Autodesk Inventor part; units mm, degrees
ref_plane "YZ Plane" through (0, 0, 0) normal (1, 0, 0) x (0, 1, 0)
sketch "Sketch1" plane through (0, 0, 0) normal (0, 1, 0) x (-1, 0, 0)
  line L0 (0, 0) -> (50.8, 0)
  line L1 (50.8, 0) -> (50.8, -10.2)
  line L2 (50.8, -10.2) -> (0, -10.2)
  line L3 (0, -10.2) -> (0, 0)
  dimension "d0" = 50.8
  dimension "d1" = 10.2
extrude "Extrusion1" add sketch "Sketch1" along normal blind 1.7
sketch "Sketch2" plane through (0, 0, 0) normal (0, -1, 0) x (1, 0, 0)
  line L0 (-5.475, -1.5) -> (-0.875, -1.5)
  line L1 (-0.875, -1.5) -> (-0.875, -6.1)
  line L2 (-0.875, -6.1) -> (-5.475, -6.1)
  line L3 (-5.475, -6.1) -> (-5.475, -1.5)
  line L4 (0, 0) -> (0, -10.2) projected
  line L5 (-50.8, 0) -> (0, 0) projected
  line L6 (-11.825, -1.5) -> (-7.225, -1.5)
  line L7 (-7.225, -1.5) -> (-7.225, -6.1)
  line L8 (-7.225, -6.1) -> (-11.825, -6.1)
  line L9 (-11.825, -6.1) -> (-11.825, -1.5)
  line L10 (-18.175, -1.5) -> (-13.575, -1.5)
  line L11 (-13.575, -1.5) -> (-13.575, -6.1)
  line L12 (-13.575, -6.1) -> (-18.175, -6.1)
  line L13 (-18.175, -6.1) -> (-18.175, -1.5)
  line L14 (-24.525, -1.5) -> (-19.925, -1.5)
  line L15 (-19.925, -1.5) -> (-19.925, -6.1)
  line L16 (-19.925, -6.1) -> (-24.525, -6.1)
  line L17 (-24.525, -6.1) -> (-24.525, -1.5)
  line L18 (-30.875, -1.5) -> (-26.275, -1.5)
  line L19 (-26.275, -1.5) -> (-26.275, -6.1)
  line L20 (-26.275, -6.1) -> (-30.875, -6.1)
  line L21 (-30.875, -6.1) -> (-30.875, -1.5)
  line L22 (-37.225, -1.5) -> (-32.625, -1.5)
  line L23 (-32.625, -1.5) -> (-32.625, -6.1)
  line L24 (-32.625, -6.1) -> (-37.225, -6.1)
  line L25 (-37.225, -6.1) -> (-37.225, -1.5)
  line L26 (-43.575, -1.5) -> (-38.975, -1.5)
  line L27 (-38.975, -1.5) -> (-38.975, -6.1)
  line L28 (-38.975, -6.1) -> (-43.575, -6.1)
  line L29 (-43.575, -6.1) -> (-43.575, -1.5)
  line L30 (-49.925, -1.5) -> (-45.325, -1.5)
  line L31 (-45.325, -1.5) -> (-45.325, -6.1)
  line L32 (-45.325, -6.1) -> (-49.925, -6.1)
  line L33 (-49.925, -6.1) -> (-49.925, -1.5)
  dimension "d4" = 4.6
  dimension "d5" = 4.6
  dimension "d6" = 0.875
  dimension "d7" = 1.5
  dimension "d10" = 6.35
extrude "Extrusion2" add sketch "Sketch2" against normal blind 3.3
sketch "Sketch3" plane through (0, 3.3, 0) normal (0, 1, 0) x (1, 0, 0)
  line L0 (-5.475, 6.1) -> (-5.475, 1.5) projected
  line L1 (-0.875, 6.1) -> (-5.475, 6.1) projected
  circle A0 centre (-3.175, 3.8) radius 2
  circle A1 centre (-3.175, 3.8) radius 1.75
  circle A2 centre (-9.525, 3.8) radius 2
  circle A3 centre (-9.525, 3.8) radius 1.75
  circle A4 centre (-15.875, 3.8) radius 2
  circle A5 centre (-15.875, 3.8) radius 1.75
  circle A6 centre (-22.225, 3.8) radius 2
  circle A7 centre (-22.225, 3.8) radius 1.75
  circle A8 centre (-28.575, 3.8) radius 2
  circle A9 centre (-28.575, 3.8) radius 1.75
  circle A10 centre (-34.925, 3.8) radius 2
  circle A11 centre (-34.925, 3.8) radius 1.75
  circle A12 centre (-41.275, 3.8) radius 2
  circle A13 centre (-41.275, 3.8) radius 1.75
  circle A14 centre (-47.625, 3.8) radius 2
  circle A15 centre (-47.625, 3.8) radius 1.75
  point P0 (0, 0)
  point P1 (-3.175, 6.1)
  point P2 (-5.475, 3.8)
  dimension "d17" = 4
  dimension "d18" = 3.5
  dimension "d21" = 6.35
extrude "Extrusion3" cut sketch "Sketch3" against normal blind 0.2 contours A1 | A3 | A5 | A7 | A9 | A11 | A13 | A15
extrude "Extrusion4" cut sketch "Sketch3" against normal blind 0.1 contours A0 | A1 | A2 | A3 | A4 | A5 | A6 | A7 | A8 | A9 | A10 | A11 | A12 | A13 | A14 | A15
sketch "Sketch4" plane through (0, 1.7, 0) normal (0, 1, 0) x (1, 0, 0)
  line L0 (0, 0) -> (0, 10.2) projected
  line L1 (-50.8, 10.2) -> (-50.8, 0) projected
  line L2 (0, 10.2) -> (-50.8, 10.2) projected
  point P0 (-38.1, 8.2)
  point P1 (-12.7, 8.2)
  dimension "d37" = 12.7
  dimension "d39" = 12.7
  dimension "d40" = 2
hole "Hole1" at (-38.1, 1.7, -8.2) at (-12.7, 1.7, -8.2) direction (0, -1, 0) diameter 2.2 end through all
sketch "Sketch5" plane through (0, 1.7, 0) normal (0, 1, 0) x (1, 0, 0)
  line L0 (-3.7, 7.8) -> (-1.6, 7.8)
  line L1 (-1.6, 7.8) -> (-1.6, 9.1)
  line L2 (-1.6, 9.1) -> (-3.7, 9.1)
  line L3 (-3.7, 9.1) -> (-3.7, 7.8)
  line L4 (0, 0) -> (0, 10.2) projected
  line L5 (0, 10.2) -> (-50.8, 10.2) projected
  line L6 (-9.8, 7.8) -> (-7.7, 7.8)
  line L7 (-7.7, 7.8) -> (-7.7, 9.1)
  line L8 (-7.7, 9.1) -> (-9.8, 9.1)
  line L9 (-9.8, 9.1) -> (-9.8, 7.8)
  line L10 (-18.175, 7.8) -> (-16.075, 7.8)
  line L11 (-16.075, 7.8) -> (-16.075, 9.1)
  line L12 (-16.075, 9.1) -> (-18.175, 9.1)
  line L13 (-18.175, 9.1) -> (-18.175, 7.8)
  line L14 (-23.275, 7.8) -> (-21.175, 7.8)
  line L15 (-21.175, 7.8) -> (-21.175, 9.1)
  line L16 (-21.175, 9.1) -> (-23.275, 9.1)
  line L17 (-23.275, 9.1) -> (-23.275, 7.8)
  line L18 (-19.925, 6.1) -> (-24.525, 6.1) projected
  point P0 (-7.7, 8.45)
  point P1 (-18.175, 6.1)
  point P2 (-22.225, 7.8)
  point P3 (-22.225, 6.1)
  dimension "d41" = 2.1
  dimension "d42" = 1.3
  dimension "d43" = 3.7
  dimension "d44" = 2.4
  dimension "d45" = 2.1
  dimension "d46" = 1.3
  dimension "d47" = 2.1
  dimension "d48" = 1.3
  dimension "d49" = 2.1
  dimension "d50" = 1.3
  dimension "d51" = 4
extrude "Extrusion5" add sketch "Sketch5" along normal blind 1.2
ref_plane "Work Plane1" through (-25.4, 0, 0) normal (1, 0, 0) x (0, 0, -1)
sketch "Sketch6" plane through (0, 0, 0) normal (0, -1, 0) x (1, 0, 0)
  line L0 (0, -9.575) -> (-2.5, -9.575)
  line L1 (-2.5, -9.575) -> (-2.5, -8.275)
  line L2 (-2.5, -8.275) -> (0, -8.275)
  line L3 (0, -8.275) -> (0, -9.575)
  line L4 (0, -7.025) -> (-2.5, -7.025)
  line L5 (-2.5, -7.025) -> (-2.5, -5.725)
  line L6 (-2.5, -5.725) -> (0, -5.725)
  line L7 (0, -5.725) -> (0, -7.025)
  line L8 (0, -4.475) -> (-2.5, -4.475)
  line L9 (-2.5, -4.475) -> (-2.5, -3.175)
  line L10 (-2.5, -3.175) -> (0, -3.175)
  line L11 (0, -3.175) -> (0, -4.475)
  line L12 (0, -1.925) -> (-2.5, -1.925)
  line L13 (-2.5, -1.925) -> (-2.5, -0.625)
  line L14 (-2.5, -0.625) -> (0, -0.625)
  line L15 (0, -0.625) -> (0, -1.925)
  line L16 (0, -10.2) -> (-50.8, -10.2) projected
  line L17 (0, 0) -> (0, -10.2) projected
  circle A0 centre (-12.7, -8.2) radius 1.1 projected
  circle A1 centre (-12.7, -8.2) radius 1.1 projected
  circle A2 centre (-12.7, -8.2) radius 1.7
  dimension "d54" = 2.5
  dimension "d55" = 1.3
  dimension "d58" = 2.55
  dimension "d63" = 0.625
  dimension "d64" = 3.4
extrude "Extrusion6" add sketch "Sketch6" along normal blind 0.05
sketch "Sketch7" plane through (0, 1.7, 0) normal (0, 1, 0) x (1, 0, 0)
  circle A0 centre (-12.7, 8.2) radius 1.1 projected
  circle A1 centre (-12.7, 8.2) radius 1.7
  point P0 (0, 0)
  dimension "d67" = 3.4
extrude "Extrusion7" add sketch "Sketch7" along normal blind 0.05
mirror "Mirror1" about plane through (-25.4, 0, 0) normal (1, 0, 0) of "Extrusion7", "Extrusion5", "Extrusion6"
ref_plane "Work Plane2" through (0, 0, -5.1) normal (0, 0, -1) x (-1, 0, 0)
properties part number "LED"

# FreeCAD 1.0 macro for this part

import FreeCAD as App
import Part
import Sketcher
from FreeCAD import Vector
Q = App.Units.Quantity


def add_polygon(sketch, points):
    """Adds a closed chain of lines whose ends are joined by coincident constraints."""
    first, n = sketch.GeometryCount, len(points)
    for a, b in zip(points, points[1:] + points[:1]):
        sketch.addGeometry(Part.LineSegment(App.Vector(*a, 0), App.Vector(*b, 0)), False)
    for i in range(n):
        sketch.addConstraint(Sketcher.Constraint("Coincident", first + i, 2, first + (i + 1) % n, 1))

doc = App.newDocument("Part")
body = doc.addObject("PartDesign::Body", "Body")

# Sketch on XZ plane
sketch1 = doc.addObject("Sketcher::SketchObject", "Sketch")
body.addObject(sketch1)
sketch1.AttachmentSupport = (doc.XZ_Plane, [""])
sketch1.MapMode = "FlatFace"
add_polygon(sketch1, [(-51, 0), (0, 0), (0, -10), (-51, -10)])  # lines 0-3
sketch1.addConstraint(Sketcher.Constraint("Horizontal", 0))
sketch1.addConstraint(Sketcher.Constraint("Vertical", 1))
sketch1.addConstraint(Sketcher.Constraint("Horizontal", 2))
sketch1.addConstraint(Sketcher.Constraint("Vertical", 3))
sketch1.addConstraint(Sketcher.Constraint("Coincident", 0, 2, -1, 1))
sketch1.addConstraint(Sketcher.Constraint("DistanceX", 0, 1, 0, 2, Q("50.8 mm")))
sketch1.addConstraint(Sketcher.Constraint("DistanceY", 1, 2, 1, 1, Q("10.2 mm")))
pad1 = doc.addObject("PartDesign::Pad", "Pad")
body.addObject(pad1)
pad1.Profile = sketch1
pad1.Length = 1.7
pad1.Reversed = True

# Sketch on XZ plane
sketch2 = doc.addObject("Sketcher::SketchObject", "Sketch001")
body.addObject(sketch2)
sketch2.AttachmentSupport = (doc.XZ_Plane, [""])
sketch2.MapMode = "FlatFace"
add_polygon(sketch2, [(-0.9, -1.5), (-5.5, -1.5), (-5.5, -6.1), (-0.9, -6.1)])  # lines 0-3
add_polygon(sketch2, [(-7.2, -1.5), (-11.8, -1.5), (-11.8, -6.1), (-7.2, -6.1)])  # lines 4-7
add_polygon(sketch2, [(-13.6, -1.5), (-18.2, -1.5), (-18.2, -6.1), (-13.6, -6.1)])  # lines 8-11
add_polygon(sketch2, [(-19.9, -1.5), (-24.5, -1.5), (-24.5, -6.1), (-19.9, -6.1)])  # lines 12-15
add_polygon(sketch2, [(-26.3, -1.5), (-30.9, -1.5), (-30.9, -6.1), (-26.3, -6.1)])  # lines 16-19
add_polygon(sketch2, [(-32.6, -1.5), (-37.2, -1.5), (-37.2, -6.1), (-32.6, -6.1)])  # lines 20-23
add_polygon(sketch2, [(-39, -1.5), (-43.6, -1.5), (-43.6, -6.1), (-39, -6.1)])  # lines 24-27
add_polygon(sketch2, [(-45.3, -1.5), (-49.9, -1.5), (-49.9, -6.1), (-45.3, -6.1)])  # lines 28-31
sketch2.addConstraint(Sketcher.Constraint("Horizontal", 0))
sketch2.addConstraint(Sketcher.Constraint("Vertical", 1))
sketch2.addConstraint(Sketcher.Constraint("Horizontal", 2))
sketch2.addConstraint(Sketcher.Constraint("Vertical", 3))
sketch2.addConstraint(Sketcher.Constraint("Horizontal", 4))
sketch2.addConstraint(Sketcher.Constraint("Vertical", 5))
sketch2.addConstraint(Sketcher.Constraint("Horizontal", 6))
sketch2.addConstraint(Sketcher.Constraint("Vertical", 7))
sketch2.addConstraint(Sketcher.Constraint("Horizontal", 8))
sketch2.addConstraint(Sketcher.Constraint("Vertical", 9))
sketch2.addConstraint(Sketcher.Constraint("Horizontal", 10))
sketch2.addConstraint(Sketcher.Constraint("Vertical", 11))
sketch2.addConstraint(Sketcher.Constraint("Horizontal", 12))
sketch2.addConstraint(Sketcher.Constraint("Vertical", 13))
sketch2.addConstraint(Sketcher.Constraint("Horizontal", 14))
sketch2.addConstraint(Sketcher.Constraint("Vertical", 15))
sketch2.addConstraint(Sketcher.Constraint("Horizontal", 16))
sketch2.addConstraint(Sketcher.Constraint("Vertical", 17))
sketch2.addConstraint(Sketcher.Constraint("Horizontal", 18))
sketch2.addConstraint(Sketcher.Constraint("Vertical", 19))
sketch2.addConstraint(Sketcher.Constraint("Horizontal", 20))
sketch2.addConstraint(Sketcher.Constraint("Vertical", 21))
sketch2.addConstraint(Sketcher.Constraint("Horizontal", 22))
sketch2.addConstraint(Sketcher.Constraint("Vertical", 23))
sketch2.addConstraint(Sketcher.Constraint("Horizontal", 24))
sketch2.addConstraint(Sketcher.Constraint("Vertical", 25))
sketch2.addConstraint(Sketcher.Constraint("Horizontal", 26))
sketch2.addConstraint(Sketcher.Constraint("Vertical", 27))
sketch2.addConstraint(Sketcher.Constraint("Horizontal", 28))
sketch2.addConstraint(Sketcher.Constraint("Vertical", 29))
sketch2.addConstraint(Sketcher.Constraint("Horizontal", 30))
sketch2.addConstraint(Sketcher.Constraint("Vertical", 31))
sketch2.addConstraint(Sketcher.Constraint("Horizontal", 3, 2, 4, 2))
sketch2.addConstraint(Sketcher.Constraint("Horizontal", 2, 2, 5, 2))
sketch2.addConstraint(Sketcher.Constraint("Horizontal", 7, 2, 8, 2))
sketch2.addConstraint(Sketcher.Constraint("Horizontal", 6, 2, 9, 2))
sketch2.addConstraint(Sketcher.Constraint("Horizontal", 11, 2, 12, 2))
sketch2.addConstraint(Sketcher.Constraint("Horizontal", 10, 2, 13, 2))
sketch2.addConstraint(Sketcher.Constraint("Horizontal", 15, 2, 16, 2))
sketch2.addConstraint(Sketcher.Constraint("Horizontal", 14, 2, 17, 2))
sketch2.addConstraint(Sketcher.Constraint("Horizontal", 19, 2, 20, 2))
sketch2.addConstraint(Sketcher.Constraint("Horizontal", 18, 2, 21, 2))
sketch2.addConstraint(Sketcher.Constraint("Horizontal", 23, 2, 24, 2))
sketch2.addConstraint(Sketcher.Constraint("Horizontal", 22, 2, 25, 2))
sketch2.addConstraint(Sketcher.Constraint("Horizontal", 27, 2, 28, 2))
sketch2.addConstraint(Sketcher.Constraint("Horizontal", 26, 2, 29, 2))
sketch2.addConstraint(Sketcher.Constraint("Equal", 2, 4))
sketch2.addConstraint(Sketcher.Constraint("Equal", 6, 8))
sketch2.addConstraint(Sketcher.Constraint("Equal", 10, 12))
sketch2.addConstraint(Sketcher.Constraint("Equal", 14, 16))
sketch2.addConstraint(Sketcher.Constraint("Equal", 18, 20))
sketch2.addConstraint(Sketcher.Constraint("Equal", 22, 24))
sketch2.addConstraint(Sketcher.Constraint("Equal", 26, 28))
sketch2.addConstraint(Sketcher.Constraint("Equal", 30, 1))
sketch2.addConstraint(Sketcher.Constraint("DistanceX", 0, 2, 0, 1, Q("4.6 mm")))
sketch2.addConstraint(Sketcher.Constraint("DistanceY", 0, 2, -1, 1, Q("1.5 mm")))
sketch2.addConstraint(Sketcher.Constraint("DistanceX", 4, 2, 0, 2, Q("6.35 mm")))
sketch2.addConstraint(Sketcher.Constraint("DistanceX", 8, 2, 4, 2, Q("6.35 mm")))
sketch2.addConstraint(Sketcher.Constraint("DistanceX", 12, 2, 8, 2, Q("6.35 mm")))
sketch2.addConstraint(Sketcher.Constraint("DistanceX", 16, 2, 12, 2, Q("6.35 mm")))
sketch2.addConstraint(Sketcher.Constraint("DistanceX", 20, 2, 16, 2, Q("6.35 mm")))
sketch2.addConstraint(Sketcher.Constraint("DistanceX", 24, 2, 20, 2, Q("6.35 mm")))
sketch2.addConstraint(Sketcher.Constraint("DistanceX", 28, 2, 24, 2, Q("6.35 mm")))
sketch2.addConstraint(Sketcher.Constraint("DistanceX", 2, 2, -1, 1, Q("0.875 mm")))
pad2 = doc.addObject("PartDesign::Pad", "Pad001")
body.addObject(pad2)
pad2.Profile = sketch2
pad2.Length = 3.3
pad2.Reversed = True

# Sketch on XZ plane
sketch3 = doc.addObject("Sketcher::SketchObject", "Sketch002")
body.addObject(sketch3)
sketch3.AttachmentSupport = (doc.XZ_Plane, [""])
sketch3.MapMode = "FlatFace"
sketch3.AttachmentOffset = App.Placement(Vector(0, 0, -3.3), App.Rotation())
sketch3.addGeometry(Part.Circle(Vector(-3.2, -3.8, 0), Vector(0, 0, 1), 1.8), False)
sketch3.addGeometry(Part.Circle(Vector(-9.5, -3.8, 0), Vector(0, 0, 1), 1.8), False)
sketch3.addGeometry(Part.Circle(Vector(-15.9, -3.8, 0), Vector(0, 0, 1), 1.8), False)
sketch3.addGeometry(Part.Circle(Vector(-22.2, -3.8, 0), Vector(0, 0, 1), 1.8), False)
sketch3.addGeometry(Part.Circle(Vector(-28.6, -3.8, 0), Vector(0, 0, 1), 1.8), False)
sketch3.addGeometry(Part.Circle(Vector(-34.9, -3.8, 0), Vector(0, 0, 1), 1.8), False)
sketch3.addGeometry(Part.Circle(Vector(-41.3, -3.8, 0), Vector(0, 0, 1), 1.8), False)
sketch3.addGeometry(Part.Circle(Vector(-47.6, -3.8, 0), Vector(0, 0, 1), 1.8), False)
sketch3.addConstraint(Sketcher.Constraint("Equal", 0, 1))
sketch3.addConstraint(Sketcher.Constraint("Equal", 1, 2))
sketch3.addConstraint(Sketcher.Constraint("Equal", 2, 3))
sketch3.addConstraint(Sketcher.Constraint("Equal", 3, 4))
sketch3.addConstraint(Sketcher.Constraint("Equal", 4, 5))
sketch3.addConstraint(Sketcher.Constraint("Equal", 5, 6))
sketch3.addConstraint(Sketcher.Constraint("Equal", 6, 7))
sketch3.addConstraint(Sketcher.Constraint("Horizontal", 0, 3, 1, 3))
sketch3.addConstraint(Sketcher.Constraint("Horizontal", 1, 3, 2, 3))
sketch3.addConstraint(Sketcher.Constraint("Horizontal", 2, 3, 3, 3))
sketch3.addConstraint(Sketcher.Constraint("Horizontal", 3, 3, 4, 3))
sketch3.addConstraint(Sketcher.Constraint("Horizontal", 4, 3, 5, 3))
sketch3.addConstraint(Sketcher.Constraint("Horizontal", 5, 3, 6, 3))
sketch3.addConstraint(Sketcher.Constraint("Horizontal", 6, 3, 7, 3))
sketch3.addConstraint(Sketcher.Constraint("Diameter", 0, Q("3.5 mm")))
sketch3.addConstraint(Sketcher.Constraint("DistanceX", 1, 3, 0, 3, Q("6.35 mm")))
sketch3.addConstraint(Sketcher.Constraint("DistanceX", 2, 3, 1, 3, Q("6.35 mm")))
sketch3.addConstraint(Sketcher.Constraint("DistanceX", 3, 3, 2, 3, Q("6.35 mm")))
sketch3.addConstraint(Sketcher.Constraint("DistanceX", 4, 3, 3, 3, Q("6.35 mm")))
sketch3.addConstraint(Sketcher.Constraint("DistanceX", 5, 3, 4, 3, Q("6.35 mm")))
sketch3.addConstraint(Sketcher.Constraint("DistanceX", 6, 3, 5, 3, Q("6.35 mm")))
sketch3.addConstraint(Sketcher.Constraint("DistanceX", 7, 3, 6, 3, Q("6.35 mm")))
sketch3.addConstraint(Sketcher.Constraint("DistanceY", 0, 3, -1, 1, Q("3.8 mm")))
sketch3.addConstraint(Sketcher.Constraint("DistanceX", 0, 3, -1, 1, Q("3.175 mm")))
pocket1 = doc.addObject("PartDesign::Pocket", "Pocket")
body.addObject(pocket1)
pocket1.Profile = sketch3
pocket1.Length = 0.2
pocket1.Reversed = True

# Sketch on XZ plane
sketch4 = doc.addObject("Sketcher::SketchObject", "Sketch003")
body.addObject(sketch4)
sketch4.AttachmentSupport = (doc.XZ_Plane, [""])
sketch4.MapMode = "FlatFace"
sketch4.AttachmentOffset = App.Placement(Vector(0, 0, -3.3), App.Rotation())
sketch4.addGeometry(Part.Circle(Vector(-3.2, -3.8, 0), Vector(0, 0, 1), 2), False)
sketch4.addGeometry(Part.Circle(Vector(-9.5, -3.8, 0), Vector(0, 0, 1), 2), False)
sketch4.addGeometry(Part.Circle(Vector(-15.9, -3.8, 0), Vector(0, 0, 1), 2), False)
sketch4.addGeometry(Part.Circle(Vector(-22.2, -3.8, 0), Vector(0, 0, 1), 2), False)
sketch4.addGeometry(Part.Circle(Vector(-28.6, -3.8, 0), Vector(0, 0, 1), 2), False)
sketch4.addGeometry(Part.Circle(Vector(-34.9, -3.8, 0), Vector(0, 0, 1), 2), False)
sketch4.addGeometry(Part.Circle(Vector(-41.3, -3.8, 0), Vector(0, 0, 1), 2), False)
sketch4.addGeometry(Part.Circle(Vector(-47.6, -3.8, 0), Vector(0, 0, 1), 2), False)
sketch4.addConstraint(Sketcher.Constraint("Equal", 0, 1))
sketch4.addConstraint(Sketcher.Constraint("Equal", 1, 2))
sketch4.addConstraint(Sketcher.Constraint("Equal", 2, 3))
sketch4.addConstraint(Sketcher.Constraint("Equal", 3, 4))
sketch4.addConstraint(Sketcher.Constraint("Equal", 4, 5))
sketch4.addConstraint(Sketcher.Constraint("Equal", 5, 6))
sketch4.addConstraint(Sketcher.Constraint("Equal", 6, 7))
sketch4.addConstraint(Sketcher.Constraint("Horizontal", 0, 3, 1, 3))
sketch4.addConstraint(Sketcher.Constraint("Horizontal", 1, 3, 2, 3))
sketch4.addConstraint(Sketcher.Constraint("Horizontal", 2, 3, 3, 3))
sketch4.addConstraint(Sketcher.Constraint("Horizontal", 3, 3, 4, 3))
sketch4.addConstraint(Sketcher.Constraint("Horizontal", 4, 3, 5, 3))
sketch4.addConstraint(Sketcher.Constraint("Horizontal", 5, 3, 6, 3))
sketch4.addConstraint(Sketcher.Constraint("Horizontal", 6, 3, 7, 3))
sketch4.addConstraint(Sketcher.Constraint("Diameter", 0, Q("4 mm")))
sketch4.addConstraint(Sketcher.Constraint("DistanceX", 1, 3, 0, 3, Q("6.35 mm")))
sketch4.addConstraint(Sketcher.Constraint("DistanceX", 2, 3, 1, 3, Q("6.35 mm")))
sketch4.addConstraint(Sketcher.Constraint("DistanceX", 3, 3, 2, 3, Q("6.35 mm")))
sketch4.addConstraint(Sketcher.Constraint("DistanceX", 4, 3, 3, 3, Q("6.35 mm")))
sketch4.addConstraint(Sketcher.Constraint("DistanceX", 5, 3, 4, 3, Q("6.35 mm")))
sketch4.addConstraint(Sketcher.Constraint("DistanceX", 6, 3, 5, 3, Q("6.35 mm")))
sketch4.addConstraint(Sketcher.Constraint("DistanceX", 7, 3, 6, 3, Q("6.35 mm")))
sketch4.addConstraint(Sketcher.Constraint("DistanceY", 0, 3, -1, 1, Q("3.8 mm")))
sketch4.addConstraint(Sketcher.Constraint("DistanceX", 0, 3, -1, 1, Q("3.175 mm")))
pocket2 = doc.addObject("PartDesign::Pocket", "Pocket001")
body.addObject(pocket2)
pocket2.Profile = sketch4
pocket2.Length = 0.1
pocket2.Reversed = True

# Sketch on XZ plane
sketch5 = doc.addObject("Sketcher::SketchObject", "Sketch004")
body.addObject(sketch5)
sketch5.AttachmentSupport = (doc.XZ_Plane, [""])
sketch5.MapMode = "FlatFace"
sketch5.AttachmentOffset = App.Placement(Vector(0, 0, -1.7), App.Rotation())
sketch5.addGeometry(Part.Circle(Vector(-38.1, -8.2, 0), Vector(0, 0, 1), 1.1), False)
sketch5.addGeometry(Part.Circle(Vector(-12.7, -8.2, 0), Vector(0, 0, 1), 1.1), False)
sketch5.addConstraint(Sketcher.Constraint("Equal", 0, 1))
sketch5.addConstraint(Sketcher.Constraint("Horizontal", 0, 3, 1, 3))
sketch5.addConstraint(Sketcher.Constraint("Diameter", 0, Q("2.2 mm")))
sketch5.addConstraint(Sketcher.Constraint("DistanceX", 0, 3, -1, 1, Q("38.1 mm")))
sketch5.addConstraint(Sketcher.Constraint("DistanceY", 0, 3, -1, 1, Q("8.2 mm")))
sketch5.addConstraint(Sketcher.Constraint("DistanceX", 1, 3, -1, 1, Q("12.7 mm")))
doc.recompute()
hole = doc.addObject("PartDesign::Hole", "Hole")
body.addObject(hole)
hole.Profile = sketch5
hole.ThreadType = "None"
hole.Diameter = 2.2
hole.DepthType = "ThroughAll"
hole.Reversed = True

# Sketch on XZ plane
sketch6 = doc.addObject("Sketcher::SketchObject", "Sketch005")
body.addObject(sketch6)
sketch6.AttachmentSupport = (doc.XZ_Plane, [""])
sketch6.MapMode = "FlatFace"
sketch6.AttachmentOffset = App.Placement(Vector(0, 0, -1.7), App.Rotation())
add_polygon(sketch6, [(-3.7, -9.1), (-3.7, -7.8), (-1.6, -7.8), (-1.6, -9.1)])  # lines 0-3
add_polygon(sketch6, [(-9.8, -9.1), (-9.8, -7.8), (-7.7, -7.8), (-7.7, -9.1)])  # lines 4-7
add_polygon(sketch6, [(-18.2, -9.1), (-18.2, -7.8), (-16.1, -7.8), (-16.1, -9.1)])  # lines 8-11
add_polygon(sketch6, [(-23.3, -9.1), (-23.3, -7.8), (-21.2, -7.8), (-21.2, -9.1)])  # lines 12-15
sketch6.addConstraint(Sketcher.Constraint("Vertical", 0))
sketch6.addConstraint(Sketcher.Constraint("Horizontal", 1))
sketch6.addConstraint(Sketcher.Constraint("Vertical", 2))
sketch6.addConstraint(Sketcher.Constraint("Horizontal", 3))
sketch6.addConstraint(Sketcher.Constraint("Vertical", 4))
sketch6.addConstraint(Sketcher.Constraint("Horizontal", 5))
sketch6.addConstraint(Sketcher.Constraint("Vertical", 6))
sketch6.addConstraint(Sketcher.Constraint("Horizontal", 7))
sketch6.addConstraint(Sketcher.Constraint("Vertical", 8))
sketch6.addConstraint(Sketcher.Constraint("Horizontal", 9))
sketch6.addConstraint(Sketcher.Constraint("Vertical", 10))
sketch6.addConstraint(Sketcher.Constraint("Horizontal", 11))
sketch6.addConstraint(Sketcher.Constraint("Vertical", 12))
sketch6.addConstraint(Sketcher.Constraint("Horizontal", 13))
sketch6.addConstraint(Sketcher.Constraint("Vertical", 14))
sketch6.addConstraint(Sketcher.Constraint("Horizontal", 15))
sketch6.addConstraint(Sketcher.Constraint("Horizontal", 1, 2, 4, 2))
sketch6.addConstraint(Sketcher.Constraint("Horizontal", 3, 2, 6, 2))
sketch6.addConstraint(Sketcher.Constraint("Horizontal", 5, 2, 8, 2))
sketch6.addConstraint(Sketcher.Constraint("Horizontal", 7, 2, 10, 2))
sketch6.addConstraint(Sketcher.Constraint("Horizontal", 9, 2, 12, 2))
sketch6.addConstraint(Sketcher.Constraint("Horizontal", 11, 2, 14, 2))
sketch6.addConstraint(Sketcher.Constraint("Equal", 3, 5))
sketch6.addConstraint(Sketcher.Constraint("Equal", 7, 9))
sketch6.addConstraint(Sketcher.Constraint("Equal", 11, 13))
sketch6.addConstraint(Sketcher.Constraint("DistanceX", 1, 1, 1, 2, Q("2.1 mm")))
sketch6.addConstraint(Sketcher.Constraint("DistanceY", 0, 1, 0, 2, Q("1.3 mm")))
sketch6.addConstraint(Sketcher.Constraint("DistanceX", 5, 2, 0, 2, Q("4 mm")))
sketch6.addConstraint(Sketcher.Constraint("DistanceX", 0, 2, -1, 1, Q("3.7 mm")))
sketch6.addConstraint(Sketcher.Constraint("DistanceX", 13, 2, 8, 2, Q("3 mm")))
sketch6.addConstraint(Sketcher.Constraint("DistanceY", 0, 2, -1, 1, Q("7.8 mm")))
sketch6.addConstraint(Sketcher.Constraint("DistanceX", 8, 2, -1, 1, Q("18.175 mm")))
pad3 = doc.addObject("PartDesign::Pad", "Pad002")
body.addObject(pad3)
pad3.Profile = sketch6
pad3.Length = 1.2
pad3.Reversed = True

# Sketch on XZ plane
sketch7 = doc.addObject("Sketcher::SketchObject", "Sketch006")
body.addObject(sketch7)
sketch7.AttachmentSupport = (doc.XZ_Plane, [""])
sketch7.MapMode = "FlatFace"
add_polygon(sketch7, [(-2.5, -1.9), (0, -1.9), (0, -0.6), (-2.5, -0.6)])  # lines 0-3
add_polygon(sketch7, [(-2.5, -4.5), (0, -4.5), (0, -3.2), (-2.5, -3.2)])  # lines 4-7
add_polygon(sketch7, [(-2.5, -7), (0, -7), (0, -5.7), (-2.5, -5.7)])  # lines 8-11
add_polygon(sketch7, [(-2.5, -9.6), (0, -9.6), (0, -8.3), (-2.5, -8.3)])  # lines 12-15
sketch7.addGeometry(Part.Circle(Vector(-12.7, -8.2, 0), Vector(0, 0, 1), 1.7), False)  # 16
sketch7.addGeometry(Part.Circle(Vector(-12.7, -8.2, 0), Vector(0, 0, 1), 1.1), False)  # 17
sketch7.addConstraint(Sketcher.Constraint("Horizontal", 0))
sketch7.addConstraint(Sketcher.Constraint("Vertical", 1))
sketch7.addConstraint(Sketcher.Constraint("Horizontal", 2))
sketch7.addConstraint(Sketcher.Constraint("Vertical", 3))
sketch7.addConstraint(Sketcher.Constraint("Horizontal", 4))
sketch7.addConstraint(Sketcher.Constraint("Vertical", 5))
sketch7.addConstraint(Sketcher.Constraint("Horizontal", 6))
sketch7.addConstraint(Sketcher.Constraint("Vertical", 7))
sketch7.addConstraint(Sketcher.Constraint("Horizontal", 8))
sketch7.addConstraint(Sketcher.Constraint("Vertical", 9))
sketch7.addConstraint(Sketcher.Constraint("Horizontal", 10))
sketch7.addConstraint(Sketcher.Constraint("Vertical", 11))
sketch7.addConstraint(Sketcher.Constraint("Horizontal", 12))
sketch7.addConstraint(Sketcher.Constraint("Vertical", 13))
sketch7.addConstraint(Sketcher.Constraint("Horizontal", 14))
sketch7.addConstraint(Sketcher.Constraint("Vertical", 15))
sketch7.addConstraint(Sketcher.Constraint("Coincident", 17, 3, 16, 3))
sketch7.addConstraint(Sketcher.Constraint("PointOnObject", 0, 2, -2))
sketch7.addConstraint(Sketcher.Constraint("PointOnObject", 4, 2, -2))
sketch7.addConstraint(Sketcher.Constraint("PointOnObject", 8, 2, -2))
sketch7.addConstraint(Sketcher.Constraint("PointOnObject", 12, 2, -2))
sketch7.addConstraint(Sketcher.Constraint("Vertical", 3, 2, 6, 2))
sketch7.addConstraint(Sketcher.Constraint("Vertical", 7, 2, 10, 2))
sketch7.addConstraint(Sketcher.Constraint("Vertical", 11, 2, 14, 2))
sketch7.addConstraint(Sketcher.Constraint("Equal", 3, 5))
sketch7.addConstraint(Sketcher.Constraint("Equal", 7, 9))
sketch7.addConstraint(Sketcher.Constraint("Equal", 11, 13))
sketch7.addConstraint(Sketcher.Constraint("Diameter", 16, Q("3.4 mm")))
sketch7.addConstraint(Sketcher.Constraint("DistanceX", 0, 1, 0, 2, Q("2.5 mm")))
sketch7.addConstraint(Sketcher.Constraint("DistanceY", 1, 1, 1, 2, Q("1.3 mm")))
sketch7.addConstraint(Sketcher.Constraint("Diameter", 17, Q("2.2 mm")))
sketch7.addConstraint(Sketcher.Constraint("DistanceY", 4, 2, 0, 2, Q("2.55 mm")))
sketch7.addConstraint(Sketcher.Constraint("DistanceY", 8, 2, 4, 2, Q("2.55 mm")))
sketch7.addConstraint(Sketcher.Constraint("DistanceY", 12, 2, 8, 2, Q("2.55 mm")))
sketch7.addConstraint(Sketcher.Constraint("DistanceY", 1, 2, -1, 1, Q("0.625 mm")))
sketch7.addConstraint(Sketcher.Constraint("DistanceX", 16, 3, -1, 1, Q("12.7 mm")))
sketch7.addConstraint(Sketcher.Constraint("DistanceY", 16, 3, -1, 1, Q("8.2 mm")))
pad4 = doc.addObject("PartDesign::Pad", "Pad003")
body.addObject(pad4)
pad4.Profile = sketch7
pad4.Length = 0.05

# Sketch on XZ plane
sketch8 = doc.addObject("Sketcher::SketchObject", "Sketch007")
body.addObject(sketch8)
sketch8.AttachmentSupport = (doc.XZ_Plane, [""])
sketch8.MapMode = "FlatFace"
sketch8.AttachmentOffset = App.Placement(Vector(0, 0, -1.7), App.Rotation())
sketch8.addGeometry(Part.Circle(Vector(-12.7, -8.2, 0), Vector(0, 0, 1), 1.7), False)
sketch8.addGeometry(Part.Circle(Vector(-12.7, -8.2, 0), Vector(0, 0, 1), 1.1), False)
sketch8.addConstraint(Sketcher.Constraint("Coincident", 1, 3, 0, 3))
sketch8.addConstraint(Sketcher.Constraint("Diameter", 0, Q("3.4 mm")))
sketch8.addConstraint(Sketcher.Constraint("Diameter", 1, Q("2.2 mm")))
sketch8.addConstraint(Sketcher.Constraint("DistanceX", 0, 3, -1, 1, Q("12.7 mm")))
sketch8.addConstraint(Sketcher.Constraint("DistanceY", 0, 3, -1, 1, Q("8.2 mm")))
pad5 = doc.addObject("PartDesign::Pad", "Pad004")
body.addObject(pad5)
pad5.Profile = sketch8
pad5.Length = 0.05
pad5.Reversed = True
doc.recompute()

datumplane = doc.addObject("PartDesign::Plane", "DatumPlane")
body.addObject(datumplane)
datumplane.AttachmentSupport = (doc.YZ_Plane, [""])
datumplane.MapMode = "FlatFace"
datumplane.AttachmentOffset = App.Placement(Vector(0, 0, -25.4), App.Rotation())
mirrored = doc.addObject("PartDesign::Mirrored", "Mirrored")
body.addObject(mirrored)
mirrored.Originals = [pad5, pad3, pad4]
mirrored.MirrorPlane = (datumplane, [""])
body.Tip = mirrored

doc.recompute()
